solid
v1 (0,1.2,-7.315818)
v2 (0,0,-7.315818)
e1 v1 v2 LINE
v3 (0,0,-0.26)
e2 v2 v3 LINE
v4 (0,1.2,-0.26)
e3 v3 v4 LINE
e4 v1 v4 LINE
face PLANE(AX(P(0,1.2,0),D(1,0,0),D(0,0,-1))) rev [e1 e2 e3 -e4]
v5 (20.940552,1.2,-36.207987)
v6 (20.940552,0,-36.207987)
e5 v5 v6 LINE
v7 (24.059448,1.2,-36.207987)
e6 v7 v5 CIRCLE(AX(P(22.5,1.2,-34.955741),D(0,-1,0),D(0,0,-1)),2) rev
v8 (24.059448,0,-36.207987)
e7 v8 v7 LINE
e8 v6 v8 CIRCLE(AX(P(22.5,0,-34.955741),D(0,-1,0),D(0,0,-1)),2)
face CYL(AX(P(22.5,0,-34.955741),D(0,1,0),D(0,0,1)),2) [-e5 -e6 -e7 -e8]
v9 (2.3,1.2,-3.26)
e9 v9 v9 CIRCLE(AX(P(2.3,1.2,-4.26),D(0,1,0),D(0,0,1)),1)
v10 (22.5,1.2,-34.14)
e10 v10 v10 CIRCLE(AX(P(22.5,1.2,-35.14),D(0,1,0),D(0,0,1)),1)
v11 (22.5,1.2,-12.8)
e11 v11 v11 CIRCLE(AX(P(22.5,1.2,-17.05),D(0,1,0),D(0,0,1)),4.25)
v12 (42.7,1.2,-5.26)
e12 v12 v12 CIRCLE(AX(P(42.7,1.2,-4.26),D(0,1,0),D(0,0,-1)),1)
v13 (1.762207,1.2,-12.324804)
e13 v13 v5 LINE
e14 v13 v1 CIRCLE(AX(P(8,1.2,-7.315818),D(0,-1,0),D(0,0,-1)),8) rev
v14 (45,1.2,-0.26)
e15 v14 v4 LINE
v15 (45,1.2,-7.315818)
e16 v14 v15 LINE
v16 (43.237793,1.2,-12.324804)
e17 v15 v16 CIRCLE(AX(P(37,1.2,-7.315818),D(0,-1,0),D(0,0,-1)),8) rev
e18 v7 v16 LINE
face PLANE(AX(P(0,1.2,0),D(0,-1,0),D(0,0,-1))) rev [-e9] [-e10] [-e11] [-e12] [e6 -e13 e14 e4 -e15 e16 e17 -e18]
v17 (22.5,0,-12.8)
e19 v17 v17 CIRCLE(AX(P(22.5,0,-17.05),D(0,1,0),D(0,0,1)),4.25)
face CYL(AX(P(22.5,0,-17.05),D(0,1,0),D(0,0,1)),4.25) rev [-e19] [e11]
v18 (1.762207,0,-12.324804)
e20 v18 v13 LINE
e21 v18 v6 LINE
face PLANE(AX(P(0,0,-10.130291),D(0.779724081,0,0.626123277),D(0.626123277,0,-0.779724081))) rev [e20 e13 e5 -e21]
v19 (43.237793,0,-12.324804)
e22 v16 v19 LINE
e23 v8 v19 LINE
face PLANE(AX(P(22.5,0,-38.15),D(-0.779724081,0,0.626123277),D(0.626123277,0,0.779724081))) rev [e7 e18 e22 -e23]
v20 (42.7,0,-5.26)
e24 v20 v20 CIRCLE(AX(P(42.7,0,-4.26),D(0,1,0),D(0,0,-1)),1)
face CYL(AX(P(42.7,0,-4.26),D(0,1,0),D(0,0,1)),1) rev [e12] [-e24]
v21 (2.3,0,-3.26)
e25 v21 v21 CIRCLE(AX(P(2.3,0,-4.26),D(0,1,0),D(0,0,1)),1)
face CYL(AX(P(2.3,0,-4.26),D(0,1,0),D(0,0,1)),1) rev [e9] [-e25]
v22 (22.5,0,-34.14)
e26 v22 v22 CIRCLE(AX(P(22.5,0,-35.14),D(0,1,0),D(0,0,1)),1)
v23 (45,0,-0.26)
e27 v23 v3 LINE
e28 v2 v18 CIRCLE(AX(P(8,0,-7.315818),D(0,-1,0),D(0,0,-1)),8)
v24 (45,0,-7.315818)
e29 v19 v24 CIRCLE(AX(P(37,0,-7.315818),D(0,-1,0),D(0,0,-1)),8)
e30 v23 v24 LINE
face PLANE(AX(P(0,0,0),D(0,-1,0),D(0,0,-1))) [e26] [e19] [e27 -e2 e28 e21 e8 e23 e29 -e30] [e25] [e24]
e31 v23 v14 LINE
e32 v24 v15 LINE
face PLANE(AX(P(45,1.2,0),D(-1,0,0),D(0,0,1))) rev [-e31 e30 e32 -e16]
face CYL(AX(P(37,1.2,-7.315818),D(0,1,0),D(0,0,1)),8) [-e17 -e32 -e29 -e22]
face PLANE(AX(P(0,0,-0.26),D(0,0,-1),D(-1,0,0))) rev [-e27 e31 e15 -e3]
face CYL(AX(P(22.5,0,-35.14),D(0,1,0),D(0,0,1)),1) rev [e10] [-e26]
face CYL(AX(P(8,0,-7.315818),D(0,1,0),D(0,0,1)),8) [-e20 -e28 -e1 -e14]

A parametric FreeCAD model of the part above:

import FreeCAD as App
import Part
import Sketcher
from FreeCAD import Vector


def edges_at(feature, points):
    """Names of the edges that pass closest to the given points."""
    edges = feature.Shape.Edges
    near = lambda p: min(range(len(edges)), key=lambda i: edges[i].distToShape(Part.Vertex(*p))[0])
    return sorted({f"Edge{near(p) + 1}" for p in points})

doc = App.newDocument("Part")
params = doc.addObject("Spreadsheet::Sheet", "Params")
for row, (alias, value) in enumerate([
    ("sketch1_diameter", "2 mm"),
    ("sketch1_width", "45 mm"),
    ("sketch1_height", "8 mm"),
    ("pad1_length", "1.2 mm"),
    ("sketch2_diameter", "2 mm"),
    ("sketch2_diameter2", "8.5 mm"),
    ("sketch2_width", "45 mm"),
    ("sketch2_height", "30.15 mm"),
    ("pad2_length", "1.2 mm"),
    ("sketch3_width", "22.5 mm"),
    ("fillet_radius", "8 mm"),
    ("fillet2_radius", "2 mm"),
    ("sketch4_diameter", "2 mm"),
    ("sketch4_width", "45 mm"),
    ("sketch4_height", "0.26 mm"),
    ("pad3_length", "1.2 mm"),
    ("sketch5_width", "45 mm"),
    ("sketch5_height", "0.26 mm"),
    ("sketch6_diameter", "2 mm"),
    ("sketch7_diameter", "2 mm"),
    ("sketch7_diameter2", "8.5 mm"),
    ("pad4_length", "1.2 mm"),
    ("sketch8_diameter", "2 mm"),
    ("sketch8_diameter2", "8.5 mm"),
], start=1):
    params.set(f"A{row}", alias)
    params.set(f"B{row}", "=" + value)
    params.setAlias(f"B{row}", alias)

body = doc.addObject("PartDesign::Body", "Body")

# Sketch on XZ plane
sketch1 = body.newObject("Sketcher::SketchObject", "Sketch")
sketch1.AttachmentSupport = (doc.getObject("XZ_Plane"), [""])
sketch1.MapMode = "FlatFace"
sketch1.addGeometry([
    Part.LineSegment(Vector(0, -8, 0), Vector(0, 0, 0)),  # 0
    Part.LineSegment(Vector(0, 0, 0), Vector(45, 0, 0)),  # 1
    Part.LineSegment(Vector(45, 0, 0), Vector(45, -8, 0)),  # 2
    Part.LineSegment(Vector(45, -8, 0), Vector(0, -8, 0)),  # 3
    Part.Circle(Vector(2, -3.78, 0), Vector(0, 0, 1), 1),  # 4
    Part.Circle(Vector(43, -3.78, 0), Vector(0, 0, 1), 1),  # 5
], False)
sketch1.addConstraint([
    Sketcher.Constraint("Coincident", 0, 2, 1, 1),
    Sketcher.Constraint("Coincident", 1, 2, 2, 1),
    Sketcher.Constraint("Coincident", 2, 2, 3, 1),
    Sketcher.Constraint("Coincident", 3, 2, 0, 1),
    Sketcher.Constraint("Vertical", 0),
    Sketcher.Constraint("Horizontal", 1),
    Sketcher.Constraint("Vertical", 2),
    Sketcher.Constraint("Horizontal", 3),
    Sketcher.Constraint("Coincident", 0, 2, -1, 1),
    Sketcher.Constraint("Equal", 4, 5),
    Sketcher.Constraint("Horizontal", 4, 3, 5, 3),
    Sketcher.Constraint("Diameter", 4, 2.0),
    Sketcher.Constraint("DistanceX", 1, 1, 1, 2, 45.0),
    Sketcher.Constraint("DistanceY", 0, 1, 0, 2, 8.0),
    Sketcher.Constraint("DistanceX", -1, 1, 4, 3, 2.0),
    Sketcher.Constraint("DistanceX", -1, 1, 5, 3, 43.0),
    Sketcher.Constraint("DistanceY", 4, 3, -1, 1, 3.78),
])
sketch1.setExpression("Constraints[11]", "Params.sketch1_diameter")
sketch1.setExpression("Constraints[12]", "Params.sketch1_width")
sketch1.setExpression("Constraints[13]", "Params.sketch1_height")
pad1 = body.newObject("PartDesign::Pad", "Pad")
pad1.Profile = sketch1
pad1.setExpression("Length", "Params.pad1_length")
pad1.Reversed = True

# Sketch on XZ plane
sketch2 = body.newObject("Sketcher::SketchObject", "Sketch001")
sketch2.AttachmentSupport = (doc.getObject("XZ_Plane"), [""])
sketch2.MapMode = "FlatFace"
sketch2.AttachmentOffset = App.Placement(Vector(0, 0, -1.2), App.Rotation())
sketch2.addGeometry([
    Part.LineSegment(Vector(0, -38.15, 0), Vector(0, -8, 0)),  # 0
    Part.LineSegment(Vector(0, -8, 0), Vector(45, -8, 0)),  # 1
    Part.LineSegment(Vector(45, -8, 0), Vector(45, -38.15, 0)),  # 2
    Part.LineSegment(Vector(45, -38.15, 0), Vector(0, -38.15, 0)),  # 3
    Part.Circle(Vector(22.5, -17.1, 0), Vector(0, 0, 1), 4.25),  # 4
    Part.Circle(Vector(22.5, -35.15, 0), Vector(0, 0, 1), 1),  # 5
], False)
sketch2.addConstraint([
    Sketcher.Constraint("Coincident", 0, 2, 1, 1),
    Sketcher.Constraint("Coincident", 1, 2, 2, 1),
    Sketcher.Constraint("Coincident", 2, 2, 3, 1),
    Sketcher.Constraint("Coincident", 3, 2, 0, 1),
    Sketcher.Constraint("Vertical", 0),
    Sketcher.Constraint("Horizontal", 1),
    Sketcher.Constraint("Vertical", 2),
    Sketcher.Constraint("Horizontal", 3),
    Sketcher.Constraint("PointOnObject", 0, 2, -2),
    Sketcher.Constraint("Vertical", 4, 3, 5, 3),
    Sketcher.Constraint("Diameter", 5, 2.0),
    Sketcher.Constraint("Diameter", 4, 8.5),
    Sketcher.Constraint("DistanceX", 1, 1, 1, 2, 45.0),
    Sketcher.Constraint("DistanceY", 0, 2, -1, 1, 8.0),
    Sketcher.Constraint("DistanceY", 2, 2, 5, 3, 3.0),
    Sketcher.Constraint("DistanceY", 0, 1, 0, 2, 30.15),
    Sketcher.Constraint("DistanceX", -1, 1, 4, 3, 22.5),
    Sketcher.Constraint("DistanceY", 4, 3, -1, 1, 17.1),
])
sketch2.setExpression("Constraints[10]", "Params.sketch2_diameter")
sketch2.setExpression("Constraints[11]", "Params.sketch2_diameter2")
sketch2.setExpression("Constraints[12]", "Params.sketch2_width")
sketch2.setExpression("Constraints[15]", "Params.sketch2_height")
pad2 = body.newObject("PartDesign::Pad", "Pad001")
pad2.Profile = sketch2
pad2.setExpression("Length", "Params.pad2_length")

# Sketch on XZ plane
sketch3 = body.newObject("Sketcher::SketchObject", "Sketch002")
sketch3.AttachmentSupport = (doc.getObject("XZ_Plane"), [""])
sketch3.MapMode = "FlatFace"
sketch3.AttachmentOffset = App.Placement(Vector(0, 0, -1.2), App.Rotation())
sketch3.addGeometry([
    Part.LineSegment(Vector(0, -38.15, 0), Vector(0, -10.130291, 0)),  # 0
    Part.LineSegment(Vector(0, -10.130291, 0), Vector(22.5, -38.15, 0)),  # 1
    Part.LineSegment(Vector(22.5, -38.15, 0), Vector(0, -38.15, 0)),  # 2
    Part.LineSegment(Vector(45, -38.15, 0), Vector(22.5, -38.15, 0)),  # 3
    Part.LineSegment(Vector(22.5, -38.15, 0), Vector(45, -10.130291, 0)),  # 4
    Part.LineSegment(Vector(45, -10.130291, 0), Vector(45, -38.15, 0)),  # 5
], False)
sketch3.addConstraint([
    Sketcher.Constraint("Coincident", 0, 2, 1, 1),
    Sketcher.Constraint("Coincident", 1, 2, 2, 1),
    Sketcher.Constraint("Coincident", 2, 2, 0, 1),
    Sketcher.Constraint("Coincident", 3, 2, 4, 1),
    Sketcher.Constraint("Coincident", 4, 2, 5, 1),
    Sketcher.Constraint("Coincident", 5, 2, 3, 1),
    Sketcher.Constraint("Vertical", 0),
    Sketcher.Constraint("Horizontal", 2),
    Sketcher.Constraint("Horizontal", 3),
    Sketcher.Constraint("Vertical", 5),
    Sketcher.Constraint("Coincident", 3, 2, 1, 2),
    Sketcher.Constraint("PointOnObject", 0, 2, -2),
    Sketcher.Constraint("Horizontal", 0, 2, 4, 2),
    Sketcher.Constraint("Equal", 2, 3),
    Sketcher.Constraint("DistanceX", 2, 2, 2, 1, 22.5),
    Sketcher.Constraint("DistanceY", 1, 2, -1, 1, 38.15),
    Sketcher.Constraint("DistanceY", 0, 1, 0, 2, 28.019709),
])
sketch3.setExpression("Constraints[14]", "Params.sketch3_width")
pocket1 = body.newObject("PartDesign::Pocket", "Pocket")
pocket1.Profile = sketch3
pocket1.Type = "ThroughAll"
pocket1.Reversed = True
doc.recompute()

fillet = body.newObject("PartDesign::Fillet", "Fillet")
fillet.Base = (pocket1, edges_at(pocket1, [(45, 0.6, -10.13), (0, 0.6, -10.13)]))
fillet.setExpression("Radius", "Params.fillet_radius")
doc.recompute()

fillet2 = body.newObject("PartDesign::Fillet", "Fillet001")
fillet2.Base = (fillet, edges_at(fillet, [(22.5, 0.6, -38.15)]))
fillet2.setExpression("Radius", "Params.fillet2_radius")

# Sketch on XZ plane
sketch4 = body.newObject("Sketcher::SketchObject", "Sketch003")
sketch4.AttachmentSupport = (doc.getObject("XZ_Plane"), [""])
sketch4.MapMode = "FlatFace"
sketch4.addGeometry([
    Part.Circle(Vector(2, -3.78, 0), Vector(0, 0, 1), 1),  # 0
    Part.Circle(Vector(43, -3.78, 0), Vector(0, 0, 1), 1),  # 1
    Part.LineSegment(Vector(0, -0.26, 0), Vector(0, 0, 0)),  # 2
    Part.LineSegment(Vector(0, 0, 0), Vector(45, 0, 0)),  # 3
    Part.LineSegment(Vector(45, 0, 0), Vector(45, -0.26, 0)),  # 4
    Part.LineSegment(Vector(45, -0.26, 0), Vector(0, -0.26, 0)),  # 5
], False)
sketch4.addConstraint([
    Sketcher.Constraint("Coincident", 2, 2, 3, 1),
    Sketcher.Constraint("Coincident", 3, 2, 4, 1),
    Sketcher.Constraint("Coincident", 4, 2, 5, 1),
    Sketcher.Constraint("Coincident", 5, 2, 2, 1),
    Sketcher.Constraint("Vertical", 2),
    Sketcher.Constraint("Horizontal", 3),
    Sketcher.Constraint("Vertical", 4),
    Sketcher.Constraint("Horizontal", 5),
    Sketcher.Constraint("Coincident", 2, 2, -1, 1),
    Sketcher.Constraint("Equal", 0, 1),
    Sketcher.Constraint("Horizontal", 0, 3, 1, 3),
    Sketcher.Constraint("Diameter", 0, 2.0),
    Sketcher.Constraint("DistanceX", 3, 1, 3, 2, 45.0),
    Sketcher.Constraint("DistanceX", -1, 1, 0, 3, 2.0),
    Sketcher.Constraint("DistanceX", -1, 1, 1, 3, 43.0),
    Sketcher.Constraint("DistanceY", 2, 1, 2, 2, 0.26),
    Sketcher.Constraint("DistanceY", 0, 3, -1, 1, 3.78),
])
sketch4.setExpression("Constraints[11]", "Params.sketch4_diameter")
sketch4.setExpression("Constraints[12]", "Params.sketch4_width")
sketch4.setExpression("Constraints[15]", "Params.sketch4_height")
pad3 = body.newObject("PartDesign::Pad", "Pad002")
pad3.Profile = sketch4
pad3.setExpression("Length", "Params.pad3_length")
pad3.Reversed = True

# Sketch on XZ plane
sketch5 = body.newObject("Sketcher::SketchObject", "Sketch004")
sketch5.AttachmentSupport = (doc.getObject("XZ_Plane"), [""])
sketch5.MapMode = "FlatFace"
sketch5.AttachmentOffset = App.Placement(Vector(0, 0, -1.2), App.Rotation())
sketch5.addGeometry([
    Part.LineSegment(Vector(0, -0.26, 0), Vector(0, 0, 0)),
    Part.LineSegment(Vector(0, 0, 0), Vector(45, 0, 0)),
    Part.LineSegment(Vector(45, 0, 0), Vector(45, -0.26, 0)),
    Part.LineSegment(Vector(45, -0.26, 0), Vector(0, -0.26, 0)),
], False)
sketch5.addConstraint([
    Sketcher.Constraint("Coincident", 0, 2, 1, 1),
    Sketcher.Constraint("Coincident", 1, 2, 2, 1),
    Sketcher.Constraint("Coincident", 2, 2, 3, 1),
    Sketcher.Constraint("Coincident", 3, 2, 0, 1),
    Sketcher.Constraint("Vertical", 0),
    Sketcher.Constraint("Horizontal", 1),
    Sketcher.Constraint("Vertical", 2),
    Sketcher.Constraint("Horizontal", 3),
    Sketcher.Constraint("Coincident", 0, 2, -1, 1),
    Sketcher.Constraint("DistanceX", 1, 1, 1, 2, 45.0),
    Sketcher.Constraint("DistanceY", 0, 1, 0, 2, 0.26),
])
sketch5.setExpression("Constraints[9]", "Params.sketch5_width")
sketch5.setExpression("Constraints[10]", "Params.sketch5_height")
pocket2 = body.newObject("PartDesign::Pocket", "Pocket001")
pocket2.Profile = sketch5
pocket2.Type = "ThroughAll"
pocket2.Reversed = True

# Sketch on XZ plane
sketch6 = body.newObject("Sketcher::SketchObject", "Sketch005")
sketch6.AttachmentSupport = (doc.getObject("XZ_Plane"), [""])
sketch6.MapMode = "FlatFace"
sketch6.AttachmentOffset = App.Placement(Vector(0, 0, -1.2), App.Rotation())
sketch6.addGeometry([
    Part.Circle(Vector(2.3, -4.26, 0), Vector(0, 0, 1), 1),
    Part.Circle(Vector(42.7, -4.26, 0), Vector(0, 0, 1), 1),
], False)
sketch6.addConstraint([
    Sketcher.Constraint("Equal", 0, 1),
    Sketcher.Constraint("Horizontal", 0, 3, 1, 3),
    Sketcher.Constraint("Diameter", 0, 2.0),
    Sketcher.Constraint("DistanceX", -1, 1, 0, 3, 2.3),
    Sketcher.Constraint("DistanceX", -1, 1, 1, 3, 42.7),
    Sketcher.Constraint("DistanceY", 0, 3, -1, 1, 4.26),
])
sketch6.setExpression("Constraints[2]", "Params.sketch6_diameter")
pocket3 = body.newObject("PartDesign::Pocket", "Pocket002")
pocket3.Profile = sketch6
pocket3.Type = "ThroughAll"
pocket3.Reversed = True

# Sketch on XZ plane
sketch7 = body.newObject("Sketcher::SketchObject", "Sketch006")
sketch7.AttachmentSupport = (doc.getObject("XZ_Plane"), [""])
sketch7.MapMode = "FlatFace"
sketch7.AttachmentOffset = App.Placement(Vector(0, 0, -1.2), App.Rotation())
sketch7.addGeometry([
    Part.Circle(Vector(22.5, -17.1, 0), Vector(0, 0, 1), 4.25),
    Part.Circle(Vector(22.5, -35.15, 0), Vector(0, 0, 1), 1),
], False)
sketch7.addConstraint([
    Sketcher.Constraint("Vertical", 0, 3, 1, 3),
    Sketcher.Constraint("Diameter", 1, 2.0),
    Sketcher.Constraint("Diameter", 0, 8.5),
    Sketcher.Constraint("DistanceX", -1, 1, 0, 3, 22.5),
    Sketcher.Constraint("DistanceY", 0, 3, -1, 1, 17.1),
    Sketcher.Constraint("DistanceY", 1, 3, -1, 1, 35.15),
])
sketch7.setExpression("Constraints[1]", "Params.sketch7_diameter")
sketch7.setExpression("Constraints[2]", "Params.sketch7_diameter2")
pad4 = body.newObject("PartDesign::Pad", "Pad003")
pad4.Profile = sketch7
pad4.setExpression("Length", "Params.pad4_length")

# Sketch on XZ plane
sketch8 = body.newObject("Sketcher::SketchObject", "Sketch007")
sketch8.AttachmentSupport = (doc.getObject("XZ_Plane"), [""])
sketch8.MapMode = "FlatFace"
sketch8.AttachmentOffset = App.Placement(Vector(0, 0, -1.2), App.Rotation())
sketch8.addGeometry([
    Part.Circle(Vector(22.5, -17.05, 0), Vector(0, 0, 1), 4.25),
    Part.Circle(Vector(22.5, -35.14, 0), Vector(0, 0, 1), 1),
], False)
sketch8.addConstraint([
    Sketcher.Constraint("Vertical", 0, 3, 1, 3),
    Sketcher.Constraint("Diameter", 1, 2.0),
    Sketcher.Constraint("Diameter", 0, 8.5),
    Sketcher.Constraint("DistanceX", -1, 1, 0, 3, 22.5),
    Sketcher.Constraint("DistanceY", 0, 3, -1, 1, 17.05),
    Sketcher.Constraint("DistanceY", 1, 3, -1, 1, 35.14),
])
sketch8.setExpression("Constraints[1]", "Params.sketch8_diameter")
sketch8.setExpression("Constraints[2]", "Params.sketch8_diameter2")
pocket4 = body.newObject("PartDesign::Pocket", "Pocket003")
pocket4.Profile = sketch8
pocket4.Type = "ThroughAll"
pocket4.Reversed = True

doc.recompute()
